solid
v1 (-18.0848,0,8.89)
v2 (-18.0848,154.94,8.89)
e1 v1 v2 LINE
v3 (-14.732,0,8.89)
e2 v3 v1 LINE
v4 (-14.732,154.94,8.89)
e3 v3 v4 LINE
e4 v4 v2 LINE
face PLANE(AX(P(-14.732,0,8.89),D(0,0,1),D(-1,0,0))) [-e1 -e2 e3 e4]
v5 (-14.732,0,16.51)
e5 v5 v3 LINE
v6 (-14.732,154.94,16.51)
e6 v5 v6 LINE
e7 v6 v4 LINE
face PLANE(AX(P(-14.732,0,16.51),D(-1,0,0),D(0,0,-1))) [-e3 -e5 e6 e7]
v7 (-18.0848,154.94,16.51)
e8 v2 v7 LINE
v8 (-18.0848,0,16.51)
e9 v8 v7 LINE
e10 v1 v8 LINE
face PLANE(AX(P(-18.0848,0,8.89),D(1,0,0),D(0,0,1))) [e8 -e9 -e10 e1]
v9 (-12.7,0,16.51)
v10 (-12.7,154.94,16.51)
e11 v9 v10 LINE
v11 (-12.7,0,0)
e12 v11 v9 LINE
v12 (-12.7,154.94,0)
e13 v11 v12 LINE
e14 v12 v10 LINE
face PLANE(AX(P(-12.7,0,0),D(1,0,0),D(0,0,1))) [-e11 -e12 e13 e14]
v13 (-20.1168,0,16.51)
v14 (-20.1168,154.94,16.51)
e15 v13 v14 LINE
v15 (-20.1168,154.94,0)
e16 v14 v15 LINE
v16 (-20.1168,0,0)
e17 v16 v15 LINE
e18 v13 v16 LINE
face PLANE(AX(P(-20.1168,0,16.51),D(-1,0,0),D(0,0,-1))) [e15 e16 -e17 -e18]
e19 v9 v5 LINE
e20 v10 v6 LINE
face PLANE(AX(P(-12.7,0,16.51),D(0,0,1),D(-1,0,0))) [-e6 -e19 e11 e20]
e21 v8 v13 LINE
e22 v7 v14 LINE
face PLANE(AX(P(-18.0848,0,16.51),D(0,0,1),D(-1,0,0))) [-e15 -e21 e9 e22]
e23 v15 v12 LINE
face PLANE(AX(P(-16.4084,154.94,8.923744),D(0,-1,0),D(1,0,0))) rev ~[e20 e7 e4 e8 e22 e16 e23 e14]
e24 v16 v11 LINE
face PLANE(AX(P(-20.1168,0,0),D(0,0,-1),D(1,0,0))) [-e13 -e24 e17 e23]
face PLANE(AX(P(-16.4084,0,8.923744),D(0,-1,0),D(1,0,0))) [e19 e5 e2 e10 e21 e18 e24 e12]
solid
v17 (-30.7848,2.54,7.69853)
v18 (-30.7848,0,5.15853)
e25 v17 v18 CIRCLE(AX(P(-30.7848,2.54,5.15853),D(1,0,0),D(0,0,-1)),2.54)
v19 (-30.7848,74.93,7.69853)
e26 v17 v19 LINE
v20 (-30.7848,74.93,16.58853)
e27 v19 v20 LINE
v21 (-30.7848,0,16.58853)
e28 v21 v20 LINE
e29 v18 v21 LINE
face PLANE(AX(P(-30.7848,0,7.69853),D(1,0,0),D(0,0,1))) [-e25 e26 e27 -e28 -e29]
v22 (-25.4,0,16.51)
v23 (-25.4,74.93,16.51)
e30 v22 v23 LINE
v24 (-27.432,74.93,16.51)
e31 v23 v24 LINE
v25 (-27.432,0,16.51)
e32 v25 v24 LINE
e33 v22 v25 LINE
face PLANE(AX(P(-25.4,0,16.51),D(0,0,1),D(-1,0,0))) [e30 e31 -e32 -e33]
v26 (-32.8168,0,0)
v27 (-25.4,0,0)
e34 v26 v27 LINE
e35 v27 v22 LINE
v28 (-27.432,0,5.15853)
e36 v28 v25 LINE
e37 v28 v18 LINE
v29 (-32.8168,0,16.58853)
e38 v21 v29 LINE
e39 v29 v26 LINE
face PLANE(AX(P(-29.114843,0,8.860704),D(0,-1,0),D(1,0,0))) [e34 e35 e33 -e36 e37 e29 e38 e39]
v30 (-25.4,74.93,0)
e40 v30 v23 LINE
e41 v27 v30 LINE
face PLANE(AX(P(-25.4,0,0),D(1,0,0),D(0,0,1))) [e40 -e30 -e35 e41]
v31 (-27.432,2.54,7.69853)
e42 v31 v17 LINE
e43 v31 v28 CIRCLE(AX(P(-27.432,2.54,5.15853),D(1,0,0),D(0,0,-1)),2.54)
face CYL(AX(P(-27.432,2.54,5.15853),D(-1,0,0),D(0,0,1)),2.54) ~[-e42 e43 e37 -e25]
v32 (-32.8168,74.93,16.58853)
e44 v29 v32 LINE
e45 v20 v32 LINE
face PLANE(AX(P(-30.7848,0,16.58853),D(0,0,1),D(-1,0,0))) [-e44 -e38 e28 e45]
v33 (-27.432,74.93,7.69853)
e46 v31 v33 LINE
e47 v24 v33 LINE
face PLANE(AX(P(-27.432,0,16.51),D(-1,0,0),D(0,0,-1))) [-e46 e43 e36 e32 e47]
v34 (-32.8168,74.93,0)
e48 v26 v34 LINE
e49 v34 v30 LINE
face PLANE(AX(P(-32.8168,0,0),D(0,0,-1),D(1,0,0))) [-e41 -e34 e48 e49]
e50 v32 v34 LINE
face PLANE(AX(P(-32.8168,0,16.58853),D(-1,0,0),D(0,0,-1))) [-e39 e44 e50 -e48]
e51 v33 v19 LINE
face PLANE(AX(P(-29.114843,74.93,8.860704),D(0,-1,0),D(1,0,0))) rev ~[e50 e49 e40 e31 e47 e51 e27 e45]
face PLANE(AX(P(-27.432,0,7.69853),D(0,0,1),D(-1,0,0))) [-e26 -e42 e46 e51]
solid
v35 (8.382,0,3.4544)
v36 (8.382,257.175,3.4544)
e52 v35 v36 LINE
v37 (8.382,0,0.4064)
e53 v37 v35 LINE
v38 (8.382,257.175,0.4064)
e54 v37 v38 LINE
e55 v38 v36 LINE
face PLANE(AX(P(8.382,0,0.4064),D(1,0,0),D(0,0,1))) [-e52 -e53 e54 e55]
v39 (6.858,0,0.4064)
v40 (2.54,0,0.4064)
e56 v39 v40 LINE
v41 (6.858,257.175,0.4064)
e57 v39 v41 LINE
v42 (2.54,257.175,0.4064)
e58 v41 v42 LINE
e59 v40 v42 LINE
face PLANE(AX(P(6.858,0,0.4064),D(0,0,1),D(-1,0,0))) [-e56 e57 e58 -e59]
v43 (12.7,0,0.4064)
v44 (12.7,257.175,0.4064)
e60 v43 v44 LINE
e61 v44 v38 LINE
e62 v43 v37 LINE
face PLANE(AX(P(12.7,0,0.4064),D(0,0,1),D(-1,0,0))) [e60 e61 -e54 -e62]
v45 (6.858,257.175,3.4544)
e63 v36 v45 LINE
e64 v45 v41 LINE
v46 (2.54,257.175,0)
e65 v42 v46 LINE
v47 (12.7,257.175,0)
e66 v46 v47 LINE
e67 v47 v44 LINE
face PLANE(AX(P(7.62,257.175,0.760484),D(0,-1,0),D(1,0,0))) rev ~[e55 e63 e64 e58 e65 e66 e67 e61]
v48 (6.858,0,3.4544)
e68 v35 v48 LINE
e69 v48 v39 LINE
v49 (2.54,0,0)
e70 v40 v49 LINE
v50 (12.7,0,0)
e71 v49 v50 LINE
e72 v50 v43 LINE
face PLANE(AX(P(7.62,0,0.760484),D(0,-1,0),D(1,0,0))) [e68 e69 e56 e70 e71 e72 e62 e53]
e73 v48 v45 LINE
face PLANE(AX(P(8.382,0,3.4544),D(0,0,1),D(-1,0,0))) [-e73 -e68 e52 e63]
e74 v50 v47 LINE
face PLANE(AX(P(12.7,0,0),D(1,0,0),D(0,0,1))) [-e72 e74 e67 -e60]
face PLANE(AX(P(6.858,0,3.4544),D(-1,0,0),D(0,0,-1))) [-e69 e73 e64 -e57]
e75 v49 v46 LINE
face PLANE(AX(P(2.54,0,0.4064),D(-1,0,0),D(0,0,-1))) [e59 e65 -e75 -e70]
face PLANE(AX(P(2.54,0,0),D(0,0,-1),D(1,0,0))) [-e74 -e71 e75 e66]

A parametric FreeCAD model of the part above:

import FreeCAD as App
import Part
import Sketcher
Q = App.Units.Quantity


def edges_at(feature, points):
    """Names of the edges that pass closest to the given points."""
    edges = feature.Shape.Edges
    near = lambda p: min(range(len(edges)), key=lambda i: edges[i].distToShape(Part.Vertex(*p))[0])
    return sorted({f"Edge{near(p) + 1}" for p in points})


def add_polygon(sketch, points):
    """Adds a closed chain of lines whose ends are joined by coincident constraints."""
    first, n = sketch.GeometryCount, len(points)
    for a, b in zip(points, points[1:] + points[:1]):
        sketch.addGeometry(Part.LineSegment(App.Vector(*a, 0), App.Vector(*b, 0)), False)
    for i in range(n):
        sketch.addConstraint(Sketcher.Constraint("Coincident", first + i, 2, first + (i + 1) % n, 1))

doc = App.newDocument("Part")
params = doc.addObject("Spreadsheet::Sheet", "Params")
for row, (alias, value) in enumerate([
    ("sketch1_height", "0.3 in"),
    ("sketch1_width", "0.08 in"),
    ("sketch1_height2", "0.65 in"),
    ("sketch1_width2", "0.292 in"),
    ("pad1_length", "6.1 in"),
    ("sketch2_width", "0.08 in"),
    ("sketch2_height", "0.65 in"),
    ("sketch2_height2", "0.35 in"),
    ("sketch2_width2", "0.292 in"),
    ("pad2_length", "2.95 in"),
    ("fillet_radius", "0.1 in"),
    ("sketch3_width", "0.4 in"),
    ("sketch3_width2", "0.17 in"),
    ("sketch3_height", "0.12 in"),
    ("sketch3_height2", "0.016 in"),
    ("pad3_length", "10.125 in"),
], start=1):
    params.set(f"A{row}", alias)
    params.set(f"B{row}", "=" + value)
    params.setAlias(f"B{row}", alias)

body = doc.addObject("PartDesign::Body", "Body")

# Sketch on XZ plane
sketch1 = doc.addObject("Sketcher::SketchObject", "Sketch")
body.addObject(sketch1)
sketch1.AttachmentSupport = (doc.XZ_Plane, [""])
sketch1.MapMode = "FlatFace"
add_polygon(sketch1, [(-20.1, 0), (-12.7, 0), (-12.7, 16.5), (-14.7, 16.5), (-14.7, 8.9), (-18.1, 8.9), (-18.1, 16.5), (-20.1, 16.5)])  # lines 0-7
sketch1.addConstraint([
    Sketcher.Constraint("Horizontal", 0),
    Sketcher.Constraint("Vertical", 1),
    Sketcher.Constraint("Horizontal", 2),
    Sketcher.Constraint("Vertical", 3),
    Sketcher.Constraint("Horizontal", 4),
    Sketcher.Constraint("Vertical", 5),
    Sketcher.Constraint("Horizontal", 6),
    Sketcher.Constraint("Vertical", 7),
    Sketcher.Constraint("PointOnObject", 0, 2, -1),
    Sketcher.Constraint("Horizontal", 2, 2, 5, 2),
    Sketcher.Constraint("Equal", 2, 6),
    Sketcher.Constraint("DistanceY", 3, 2, 3, 1, Q("0.3 in")),
    Sketcher.Constraint("DistanceX", 2, 2, 2, 1, Q("0.08 in")),
    Sketcher.Constraint("DistanceY", 1, 1, 1, 2, Q("0.65 in")),
    Sketcher.Constraint("DistanceX", 0, 2, -1, 1, Q("0.5 in")),
    Sketcher.Constraint("DistanceX", 0, 1, 0, 2, Q("0.292 in")),
])
sketch1.setExpression("Constraints[19]", "Params.sketch1_height")
sketch1.setExpression("Constraints[20]", "Params.sketch1_width")
sketch1.setExpression("Constraints[21]", "Params.sketch1_height2")
sketch1.setExpression("Constraints[23]", "Params.sketch1_width2")
pad1 = doc.addObject("PartDesign::Pad", "Pad")
body.addObject(pad1)
pad1.Profile = sketch1
pad1.setExpression("Length", "Params.pad1_length")
pad1.Reversed = True
body2 = doc.addObject("PartDesign::Body", "Body001")

# Sketch on XZ plane
sketch2 = doc.addObject("Sketcher::SketchObject", "Sketch001")
body2.addObject(sketch2)
sketch2.AttachmentSupport = (doc.getObject("XZ_Plane001"), [""])
sketch2.MapMode = "FlatFace"
add_polygon(sketch2, [(-32.8, 0), (-25.4, 0), (-25.4, 16.5), (-27.4, 16.5), (-27.4, 7.7), (-30.8, 7.7), (-30.8, 16.6), (-32.8, 16.6)])  # lines 0-7
sketch2.addConstraint([
    Sketcher.Constraint("Horizontal", 0),
    Sketcher.Constraint("Vertical", 1),
    Sketcher.Constraint("Horizontal", 2),
    Sketcher.Constraint("Vertical", 3),
    Sketcher.Constraint("Horizontal", 4),
    Sketcher.Constraint("Vertical", 5),
    Sketcher.Constraint("Horizontal", 6),
    Sketcher.Constraint("Vertical", 7),
    Sketcher.Constraint("PointOnObject", 0, 2, -1),
    Sketcher.Constraint("Equal", 2, 6),
    Sketcher.Constraint("DistanceX", 0, 2, -1, 1, Q("1 in")),
    Sketcher.Constraint("DistanceX", 2, 2, 2, 1, Q("0.08 in")),
    Sketcher.Constraint("DistanceY", 1, 1, 1, 2, Q("0.65 in")),
    Sketcher.Constraint("DistanceY", 5, 1, 5, 2, Q("0.35 in")),
    Sketcher.Constraint("DistanceX", 0, 1, 0, 2, Q("0.292 in")),
    Sketcher.Constraint("DistanceY", 3, 2, 3, 1, 8.81147),
])
sketch2.setExpression("Constraints[19]", "Params.sketch2_width")
sketch2.setExpression("Constraints[20]", "Params.sketch2_height")
sketch2.setExpression("Constraints[21]", "Params.sketch2_height2")
sketch2.setExpression("Constraints[22]", "Params.sketch2_width2")
pad2 = doc.addObject("PartDesign::Pad", "Pad001")
body2.addObject(pad2)
pad2.Profile = sketch2
pad2.setExpression("Length", "Params.pad2_length")
pad2.Reversed = True
doc.recompute()

fillet = doc.addObject("PartDesign::Fillet", "Fillet")
body2.addObject(fillet)
fillet.Base = (pad2, edges_at(pad2, [(-29.108, 0, 7.699)]))
fillet.setExpression("Radius", "Params.fillet_radius")
body3 = doc.addObject("PartDesign::Body", "Body002")

# Sketch on XZ plane
sketch3 = doc.addObject("Sketcher::SketchObject", "Sketch002")
body3.addObject(sketch3)
sketch3.AttachmentSupport = (doc.getObject("XZ_Plane002"), [""])
sketch3.MapMode = "FlatFace"
add_polygon(sketch3, [(2.54, 0.41), (2.54, 0), (12.7, 0), (12.7, 0.41), (8.38, 0.41), (8.38, 3.45), (6.86, 3.45), (6.86, 0.41)])  # lines 0-7
sketch3.addConstraint([
    Sketcher.Constraint("Vertical", 0),
    Sketcher.Constraint("Horizontal", 1),
    Sketcher.Constraint("Vertical", 2),
    Sketcher.Constraint("Horizontal", 3),
    Sketcher.Constraint("Vertical", 4),
    Sketcher.Constraint("Horizontal", 5),
    Sketcher.Constraint("Vertical", 6),
    Sketcher.Constraint("Horizontal", 7),
    Sketcher.Constraint("PointOnObject", 0, 2, -1),
    Sketcher.Constraint("Horizontal", 3, 2, 6, 2),
    Sketcher.Constraint("Equal", 3, 7),
    Sketcher.Constraint("DistanceX", 1, 1, 1, 2, Q("0.4 in")),
    Sketcher.Constraint("DistanceX", 3, 2, 3, 1, Q("0.17 in")),
    Sketcher.Constraint("DistanceY", 4, 1, 4, 2, Q("0.12 in")),
    Sketcher.Constraint("DistanceX", -1, 1, 0, 2, Q("0.1 in")),
    Sketcher.Constraint("DistanceY", 0, 2, 0, 1, Q("0.016 in")),
])
sketch3.setExpression("Constraints[19]", "Params.sketch3_width")
sketch3.setExpression("Constraints[20]", "Params.sketch3_width2")
sketch3.setExpression("Constraints[21]", "Params.sketch3_height")
sketch3.setExpression("Constraints[23]", "Params.sketch3_height2")
pad3 = doc.addObject("PartDesign::Pad", "Pad002")
body3.addObject(pad3)
pad3.Profile = sketch3
pad3.setExpression("Length", "Params.pad3_length")
pad3.Reversed = True

doc.recompute()
